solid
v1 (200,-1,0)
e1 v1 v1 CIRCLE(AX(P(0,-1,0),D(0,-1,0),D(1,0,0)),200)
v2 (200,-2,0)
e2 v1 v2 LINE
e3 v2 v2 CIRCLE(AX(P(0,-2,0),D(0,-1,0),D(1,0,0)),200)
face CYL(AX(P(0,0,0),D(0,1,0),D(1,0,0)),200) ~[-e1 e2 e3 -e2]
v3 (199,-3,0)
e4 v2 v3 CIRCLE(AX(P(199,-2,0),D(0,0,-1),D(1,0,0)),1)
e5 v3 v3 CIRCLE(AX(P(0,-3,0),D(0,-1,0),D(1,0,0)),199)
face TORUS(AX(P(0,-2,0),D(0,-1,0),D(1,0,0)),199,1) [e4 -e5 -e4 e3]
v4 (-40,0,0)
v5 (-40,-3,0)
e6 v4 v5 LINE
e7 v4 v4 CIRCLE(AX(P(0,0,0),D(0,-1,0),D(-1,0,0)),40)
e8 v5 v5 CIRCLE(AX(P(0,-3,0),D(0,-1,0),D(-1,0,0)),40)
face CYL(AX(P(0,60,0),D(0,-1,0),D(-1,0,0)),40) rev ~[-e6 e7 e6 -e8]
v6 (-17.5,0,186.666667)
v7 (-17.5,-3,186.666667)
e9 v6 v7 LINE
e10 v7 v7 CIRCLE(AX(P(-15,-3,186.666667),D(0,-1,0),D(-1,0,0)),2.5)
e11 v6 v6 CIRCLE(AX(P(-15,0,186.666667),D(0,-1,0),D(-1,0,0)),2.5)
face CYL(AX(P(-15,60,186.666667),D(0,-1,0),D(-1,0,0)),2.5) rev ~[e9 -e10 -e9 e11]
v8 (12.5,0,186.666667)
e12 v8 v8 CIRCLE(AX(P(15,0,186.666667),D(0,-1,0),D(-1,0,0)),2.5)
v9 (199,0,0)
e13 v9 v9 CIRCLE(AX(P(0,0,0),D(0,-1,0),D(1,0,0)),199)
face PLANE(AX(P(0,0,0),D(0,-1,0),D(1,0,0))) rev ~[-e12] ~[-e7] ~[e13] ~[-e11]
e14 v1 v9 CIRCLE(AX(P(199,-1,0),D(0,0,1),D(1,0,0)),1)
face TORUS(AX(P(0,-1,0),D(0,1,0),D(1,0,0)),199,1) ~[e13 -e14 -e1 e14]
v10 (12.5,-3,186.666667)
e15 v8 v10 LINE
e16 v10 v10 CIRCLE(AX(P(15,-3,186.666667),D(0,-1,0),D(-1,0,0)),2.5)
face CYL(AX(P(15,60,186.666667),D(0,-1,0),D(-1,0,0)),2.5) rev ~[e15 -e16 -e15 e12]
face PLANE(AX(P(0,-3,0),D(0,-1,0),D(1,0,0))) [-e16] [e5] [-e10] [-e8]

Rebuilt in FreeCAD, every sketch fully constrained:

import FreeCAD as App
import Part
import Sketcher
from FreeCAD import Vector


def edges_at(feature, points):
    """Names of the edges that pass closest to the given points."""
    edges = feature.Shape.Edges
    near = lambda p: min(range(len(edges)), key=lambda i: edges[i].distToShape(Part.Vertex(*p))[0])
    return sorted({f"Edge{near(p) + 1}" for p in points})

doc = App.newDocument("Part")
params = doc.addObject("Spreadsheet::Sheet", "Params")
for row, (alias, value) in enumerate([
    ("sketch1_diameter", "400 mm"),
    ("pad1_length", "3 mm"),
    ("sketch2_diameter", "5 mm"),
    ("hole_diameter", "5 mm"),
    ("hole_depth", "60 mm"),
    ("fillet_radius", "1 mm"),
    ("sketch3_diameter", "80 mm"),
    ("hole2_diameter", "80 mm"),
    ("hole2_depth", "60 mm"),
], start=1):
    params.set(f"A{row}", alias)
    params.set(f"B{row}", "=" + value)
    params.setAlias(f"B{row}", alias)

body = doc.addObject("PartDesign::Body", "Body")

sketch1 = body.newObject("Sketcher::SketchObject", "Sketch")
sketch1.AttachmentSupport = (doc.getObject("XZ_Plane"), [""])
sketch1.MapMode = "FlatFace"
sketch1.addGeometry(Part.Circle(Vector(0, 0, 0), Vector(0, 0, 1), 200), False)
sketch1.addConstraint([
    Sketcher.Constraint("Coincident", 0, 3, -1, 1),
    Sketcher.Constraint("Diameter", 0, 400.0),
])
sketch1.setExpression("Constraints[1]", "Params.sketch1_diameter")
pad1 = body.newObject("PartDesign::Pad", "Pad")
pad1.Profile = sketch1
pad1.setExpression("Length", "Params.pad1_length")

sketch2 = body.newObject("Sketcher::SketchObject", "Sketch001")
sketch2.AttachmentSupport = (doc.getObject("XZ_Plane"), [""])
sketch2.MapMode = "FlatFace"
sketch2.addGeometry([
    Part.Circle(Vector(-15, 186.7, 0), Vector(0, 0, 1), 2.5),
    Part.Circle(Vector(15, 186.7, 0), Vector(0, 0, 1), 2.5),
], False)
sketch2.addConstraint([
    Sketcher.Constraint("Equal", 0, 1),
    Sketcher.Constraint("Symmetric", 0, 3, 1, 3, -2),
    Sketcher.Constraint("Diameter", 0, 5.0),
    Sketcher.Constraint("DistanceX", 0, 3, -1, 1, 15.0),
    Sketcher.Constraint("DistanceY", -1, 1, 0, 3, 186.666667),
])
sketch2.setExpression("Constraints[2]", "Params.sketch2_diameter")
doc.recompute()
hole = body.newObject("PartDesign::Hole", "Hole")
hole.Profile = sketch2
hole.ThreadType = "None"
hole.setExpression("Diameter", "Params.hole_diameter")
hole.DepthType = "Dimension"
hole.setExpression("Depth", "Params.hole_depth")
hole.DrillPoint = "Angled"
hole.DrillPointAngle = 118
hole.Reversed = True
doc.recompute()

fillet = body.newObject("PartDesign::Fillet", "Fillet")
fillet.Base = (hole, edges_at(hole, [(-200, -3, 0), (-200, 0, 0)]))
fillet.setExpression("Radius", "Params.fillet_radius")

sketch3 = body.newObject("Sketcher::SketchObject", "Sketch002")
sketch3.AttachmentSupport = (doc.getObject("XZ_Plane"), [""])
sketch3.MapMode = "FlatFace"
sketch3.addGeometry(Part.Circle(Vector(0, 0, 0), Vector(0, 0, 1), 40), False)
sketch3.addConstraint([
    Sketcher.Constraint("Coincident", 0, 3, -1, 1),
    Sketcher.Constraint("Diameter", 0, 80.0),
])
sketch3.setExpression("Constraints[1]", "Params.sketch3_diameter")
doc.recompute()
hole2 = body.newObject("PartDesign::Hole", "Hole001")
hole2.Profile = sketch3
hole2.ThreadType = "None"
hole2.setExpression("Diameter", "Params.hole2_diameter")
hole2.DepthType = "Dimension"
hole2.setExpression("Depth", "Params.hole2_depth")
hole2.DrillPoint = "Angled"
hole2.DrillPointAngle = 118
hole2.Reversed = True

doc.recompute()
